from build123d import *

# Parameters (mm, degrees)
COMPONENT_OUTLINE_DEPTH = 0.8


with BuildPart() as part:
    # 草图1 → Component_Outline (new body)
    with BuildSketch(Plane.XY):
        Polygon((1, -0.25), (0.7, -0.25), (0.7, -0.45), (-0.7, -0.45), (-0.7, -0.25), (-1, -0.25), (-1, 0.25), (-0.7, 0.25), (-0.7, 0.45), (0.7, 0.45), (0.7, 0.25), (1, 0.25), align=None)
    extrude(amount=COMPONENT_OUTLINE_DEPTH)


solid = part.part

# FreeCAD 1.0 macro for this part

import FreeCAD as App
import Part
import Sketcher
Q = App.Units.Quantity

doc = App.newDocument("Part")
body = doc.addObject("PartDesign::Body", "Body")

sketch1 = body.newObject("Sketcher::SketchObject", "Sketch")
sketch1.AttachmentSupport = (doc.getObject("XY_Plane"), [""])
sketch1.MapMode = "FlatFace"
sketch1.addGeometry(Part.LineSegment(App.Vector(0.7, -0.25, 0), App.Vector(1, -0.25, 0)), False)
sketch1.addGeometry(Part.LineSegment(App.Vector(1, -0.25, 0), App.Vector(1, 0.25, 0)), False)
sketch1.addGeometry(Part.LineSegment(App.Vector(1, 0.25, 0), App.Vector(0.7, 0.25, 0)), False)
sketch1.addGeometry(Part.LineSegment(App.Vector(0.7, 0.25, 0), App.Vector(0.7, 0.45, 0)), False)
sketch1.addGeometry(Part.LineSegment(App.Vector(0.7, 0.45, 0), App.Vector(-0.7, 0.45, 0)), False)
sketch1.addGeometry(Part.LineSegment(App.Vector(-0.7, 0.45, 0), App.Vector(-0.7, 0.25, 0)), False)
sketch1.addGeometry(Part.LineSegment(App.Vector(-0.7, 0.25, 0), App.Vector(-1, 0.25, 0)), False)
sketch1.addGeometry(Part.LineSegment(App.Vector(-1, 0.25, 0), App.Vector(-1, -0.25, 0)), False)
sketch1.addGeometry(Part.LineSegment(App.Vector(-1, -0.25, 0), App.Vector(-0.7, -0.25, 0)), False)
sketch1.addGeometry(Part.LineSegment(App.Vector(-0.7, -0.25, 0), App.Vector(-0.7, -0.45, 0)), False)
sketch1.addGeometry(Part.LineSegment(App.Vector(-0.7, -0.45, 0), App.Vector(0.7, -0.45, 0)), False)
sketch1.addGeometry(Part.LineSegment(App.Vector(0.7, -0.45, 0), App.Vector(0.7, -0.25, 0)), False)
sketch1.addConstraint(Sketcher.Constraint("Coincident", 0, 2, 1, 1))
sketch1.addConstraint(Sketcher.Constraint("Coincident", 1, 2, 2, 1))
sketch1.addConstraint(Sketcher.Constraint("Coincident", 2, 2, 3, 1))
sketch1.addConstraint(Sketcher.Constraint("Coincident", 3, 2, 4, 1))
sketch1.addConstraint(Sketcher.Constraint("Coincident", 4, 2, 5, 1))
sketch1.addConstraint(Sketcher.Constraint("Coincident", 5, 2, 6, 1))
sketch1.addConstraint(Sketcher.Constraint("Coincident", 6, 2, 7, 1))
sketch1.addConstraint(Sketcher.Constraint("Coincident", 7, 2, 8, 1))
sketch1.addConstraint(Sketcher.Constraint("Coincident", 8, 2, 9, 1))
sketch1.addConstraint(Sketcher.Constraint("Coincident", 9, 2, 10, 1))
sketch1.addConstraint(Sketcher.Constraint("Coincident", 10, 2, 11, 1))
sketch1.addConstraint(Sketcher.Constraint("Coincident", 11, 2, 0, 1))
sketch1.addConstraint(Sketcher.Constraint("Horizontal", 0))
sketch1.addConstraint(Sketcher.Constraint("Vertical", 1))
sketch1.addConstraint(Sketcher.Constraint("Horizontal", 2))
sketch1.addConstraint(Sketcher.Constraint("Vertical", 3))
sketch1.addConstraint(Sketcher.Constraint("Horizontal", 4))
sketch1.addConstraint(Sketcher.Constraint("Vertical", 5))
sketch1.addConstraint(Sketcher.Constraint("Horizontal", 6))
sketch1.addConstraint(Sketcher.Constraint("Vertical", 7))
sketch1.addConstraint(Sketcher.Constraint("Horizontal", 8))
sketch1.addConstraint(Sketcher.Constraint("Vertical", 9))
sketch1.addConstraint(Sketcher.Constraint("Horizontal", 10))
sketch1.addConstraint(Sketcher.Constraint("Vertical", 11))
sketch1.addConstraint(Sketcher.Constraint("Symmetric", 0, 2, 6, 2, -1, 1))
sketch1.addConstraint(Sketcher.Constraint("Symmetric", 2, 2, 8, 2, -1, 1))
sketch1.addConstraint(Sketcher.Constraint("Symmetric", 4, 2, 10, 2, -1, 1))
sketch1.addConstraint(Sketcher.Constraint("Symmetric", 2, 2, 5, 2, -2))
sketch1.addConstraint(Sketcher.Constraint("DistanceX", 0, 1, 0, 2, Q("0.3 mm")))
sketch1.addConstraint(Sketcher.Constraint("DistanceX", 4, 2, 4, 1, Q("1.4 mm")))
sketch1.addConstraint(Sketcher.Constraint("DistanceY", 1, 1, 1, 2, Q("0.5 mm")))
sketch1.addConstraint(Sketcher.Constraint("DistanceY", 3, 1, 3, 2, Q("0.2 mm")))
pad1 = body.newObject("PartDesign::Pad", "Pad")
pad1.Profile = sketch1
pad1.Length = 0.8

doc.recompute()
